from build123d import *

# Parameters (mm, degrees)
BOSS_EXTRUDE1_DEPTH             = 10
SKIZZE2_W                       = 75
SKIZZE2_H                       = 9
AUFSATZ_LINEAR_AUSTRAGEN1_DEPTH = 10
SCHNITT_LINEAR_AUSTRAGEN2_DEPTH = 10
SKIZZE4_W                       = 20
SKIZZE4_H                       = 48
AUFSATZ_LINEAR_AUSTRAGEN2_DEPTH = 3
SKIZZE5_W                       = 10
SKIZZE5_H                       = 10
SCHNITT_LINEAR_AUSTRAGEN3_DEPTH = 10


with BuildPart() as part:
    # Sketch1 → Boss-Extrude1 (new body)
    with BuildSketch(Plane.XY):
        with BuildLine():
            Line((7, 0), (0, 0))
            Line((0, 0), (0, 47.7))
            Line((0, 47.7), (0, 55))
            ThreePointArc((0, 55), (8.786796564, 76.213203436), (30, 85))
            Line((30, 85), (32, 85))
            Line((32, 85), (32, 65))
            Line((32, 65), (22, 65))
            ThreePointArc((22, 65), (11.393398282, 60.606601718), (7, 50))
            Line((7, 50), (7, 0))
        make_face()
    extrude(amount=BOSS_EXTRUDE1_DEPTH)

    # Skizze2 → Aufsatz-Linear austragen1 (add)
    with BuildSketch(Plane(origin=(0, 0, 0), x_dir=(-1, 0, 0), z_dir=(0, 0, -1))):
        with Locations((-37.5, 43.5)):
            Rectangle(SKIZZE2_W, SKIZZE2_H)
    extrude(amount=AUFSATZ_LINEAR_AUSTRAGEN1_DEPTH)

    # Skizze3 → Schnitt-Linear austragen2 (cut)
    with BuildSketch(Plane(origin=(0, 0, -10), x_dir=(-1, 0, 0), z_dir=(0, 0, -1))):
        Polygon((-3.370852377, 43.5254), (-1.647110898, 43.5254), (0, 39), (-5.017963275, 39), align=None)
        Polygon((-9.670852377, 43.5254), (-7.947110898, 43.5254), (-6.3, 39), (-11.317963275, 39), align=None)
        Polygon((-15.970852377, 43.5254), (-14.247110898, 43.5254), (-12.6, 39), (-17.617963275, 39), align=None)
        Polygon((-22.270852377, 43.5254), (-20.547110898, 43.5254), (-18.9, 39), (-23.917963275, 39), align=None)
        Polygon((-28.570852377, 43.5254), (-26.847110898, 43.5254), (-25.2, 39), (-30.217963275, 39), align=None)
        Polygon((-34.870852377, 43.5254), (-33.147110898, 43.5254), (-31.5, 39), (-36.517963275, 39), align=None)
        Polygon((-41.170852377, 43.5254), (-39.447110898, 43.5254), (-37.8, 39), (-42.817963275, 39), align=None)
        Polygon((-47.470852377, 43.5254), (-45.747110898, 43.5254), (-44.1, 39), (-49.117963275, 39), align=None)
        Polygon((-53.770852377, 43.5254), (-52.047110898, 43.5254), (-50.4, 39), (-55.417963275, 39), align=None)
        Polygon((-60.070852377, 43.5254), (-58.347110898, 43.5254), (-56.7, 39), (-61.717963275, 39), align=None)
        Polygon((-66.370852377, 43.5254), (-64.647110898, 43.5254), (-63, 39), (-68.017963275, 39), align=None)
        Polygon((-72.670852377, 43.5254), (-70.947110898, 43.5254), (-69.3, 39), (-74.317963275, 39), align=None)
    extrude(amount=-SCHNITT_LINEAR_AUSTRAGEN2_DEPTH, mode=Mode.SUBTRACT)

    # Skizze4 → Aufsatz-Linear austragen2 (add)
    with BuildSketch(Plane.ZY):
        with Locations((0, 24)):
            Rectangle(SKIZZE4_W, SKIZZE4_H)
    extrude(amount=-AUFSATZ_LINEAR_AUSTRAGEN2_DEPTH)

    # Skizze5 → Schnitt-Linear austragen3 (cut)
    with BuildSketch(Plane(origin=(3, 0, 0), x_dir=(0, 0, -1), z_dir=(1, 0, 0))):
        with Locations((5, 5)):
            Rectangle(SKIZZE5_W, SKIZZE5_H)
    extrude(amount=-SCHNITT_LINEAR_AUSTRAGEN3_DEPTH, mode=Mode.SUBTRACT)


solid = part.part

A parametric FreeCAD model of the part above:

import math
import FreeCAD as App
import Part
import Sketcher
from FreeCAD import Vector
Q = App.Units.Quantity

doc = App.newDocument("Part")
body = doc.addObject("PartDesign::Body", "Body")

# Sketch on XY plane
sketch1 = body.newObject("Sketcher::SketchObject", "Sketch")
sketch1.AttachmentSupport = (doc.getObject("XY_Plane"), [""])
sketch1.MapMode = "FlatFace"
sketch1.addGeometry([
    Part.LineSegment(Vector(0, 0, 0), Vector(7, 0, 0)),  # 0
    Part.LineSegment(Vector(7, 0, 0), Vector(7, 50, 0)),  # 1
    Part.ArcOfCircle(Part.Circle(Vector(22, 50, 0), Vector(0, 0, 1), 15), math.radians(90), math.radians(180)),  # 2
    Part.LineSegment(Vector(22, 65, 0), Vector(32, 65, 0)),  # 3
    Part.LineSegment(Vector(32, 65, 0), Vector(32, 85, 0)),  # 4
    Part.LineSegment(Vector(32, 85, 0), Vector(30, 85, 0)),  # 5
    Part.ArcOfCircle(Part.Circle(Vector(30, 55, 0), Vector(0, 0, 1), 30), math.radians(90), math.radians(180)),  # 6
    Part.LineSegment(Vector(0, 55, 0), Vector(0, 0, 0)),  # 7
], False)
sketch1.addConstraint([
    Sketcher.Constraint("Coincident", 0, 2, 1, 1),
    Sketcher.Constraint("Tangent", 1, 2, 2, 2),
    Sketcher.Constraint("Tangent", 2, 1, 3, 1),
    Sketcher.Constraint("Coincident", 3, 2, 4, 1),
    Sketcher.Constraint("Coincident", 4, 2, 5, 1),
    Sketcher.Constraint("Tangent", 5, 2, 6, 1),
    Sketcher.Constraint("Tangent", 6, 2, 7, 1),
    Sketcher.Constraint("Coincident", 7, 2, 0, 1),
    Sketcher.Constraint("Horizontal", 0),
    Sketcher.Constraint("Vertical", 1),
    Sketcher.Constraint("Horizontal", 3),
    Sketcher.Constraint("Vertical", 4),
    Sketcher.Constraint("Horizontal", 5),
    Sketcher.Constraint("Vertical", 7),
    Sketcher.Constraint("Coincident", 7, 2, -1, 1),
    Sketcher.Constraint("Radius", 2, Q("15 mm")),
    Sketcher.Constraint("Radius", 6, Q("30 mm")),
    Sketcher.Constraint("DistanceX", 0, 1, 0, 2, Q("7 mm")),
    Sketcher.Constraint("DistanceX", 3, 1, 3, 2, Q("10 mm")),
    Sketcher.Constraint("DistanceY", 1, 1, 1, 2, Q("50 mm")),
    Sketcher.Constraint("DistanceY", 4, 1, 4, 2, Q("20 mm")),
])
pad1 = body.newObject("PartDesign::Pad", "Pad")
pad1.Profile = sketch1
pad1.Length = 10

# Sketch on XY plane
sketch2 = body.newObject("Sketcher::SketchObject", "Sketch001")
sketch2.AttachmentSupport = (doc.getObject("XY_Plane"), [""])
sketch2.MapMode = "FlatFace"
sketch2.addGeometry([
    Part.LineSegment(Vector(75, 48, 0), Vector(75, 39, 0)),
    Part.LineSegment(Vector(75, 39, 0), Vector(0, 39, 0)),
    Part.LineSegment(Vector(0, 39, 0), Vector(0, 48, 0)),
    Part.LineSegment(Vector(0, 48, 0), Vector(75, 48, 0)),
], False)
sketch2.addConstraint([
    Sketcher.Constraint("Coincident", 0, 2, 1, 1),
    Sketcher.Constraint("Coincident", 1, 2, 2, 1),
    Sketcher.Constraint("Coincident", 2, 2, 3, 1),
    Sketcher.Constraint("Coincident", 3, 2, 0, 1),
    Sketcher.Constraint("Vertical", 0),
    Sketcher.Constraint("Horizontal", 1),
    Sketcher.Constraint("Vertical", 2),
    Sketcher.Constraint("Horizontal", 3),
    Sketcher.Constraint("PointOnObject", 1, 2, -2),
    Sketcher.Constraint("DistanceX", 1, 2, 1, 1, Q("75 mm")),
    Sketcher.Constraint("DistanceY", 0, 2, 0, 1, Q("9 mm")),
    Sketcher.Constraint("DistanceY", -1, 1, 0, 2, Q("39 mm")),
])
pad2 = body.newObject("PartDesign::Pad", "Pad001")
pad2.Profile = sketch2
pad2.Length = 10
pad2.Reversed = True

# Sketch on XY plane
sketch3 = body.newObject("Sketcher::SketchObject", "Sketch002")
sketch3.AttachmentSupport = (doc.getObject("XY_Plane"), [""])
sketch3.MapMode = "FlatFace"
sketch3.AttachmentOffset = App.Placement(Vector(0, 0, -10), App.Rotation())
sketch3.addGeometry([
    Part.LineSegment(Vector(1.647111, 43.5254, 0), Vector(3.370852, 43.5254, 0)),  # 0
    Part.LineSegment(Vector(3.370852, 43.5254, 0), Vector(5.017963, 39, 0)),  # 1
    Part.LineSegment(Vector(5.017963, 39, 0), Vector(0, 39, 0)),  # 2
    Part.LineSegment(Vector(0, 39, 0), Vector(1.647111, 43.5254, 0)),  # 3
    Part.LineSegment(Vector(7.947111, 43.5254, 0), Vector(9.670852, 43.5254, 0)),  # 4
    Part.LineSegment(Vector(9.670852, 43.5254, 0), Vector(11.317963, 39, 0)),  # 5
    Part.LineSegment(Vector(11.317963, 39, 0), Vector(6.3, 39, 0)),  # 6
    Part.LineSegment(Vector(6.3, 39, 0), Vector(7.947111, 43.5254, 0)),  # 7
    Part.LineSegment(Vector(14.247111, 43.5254, 0), Vector(15.970852, 43.5254, 0)),  # 8
    Part.LineSegment(Vector(15.970852, 43.5254, 0), Vector(17.617963, 39, 0)),  # 9
    Part.LineSegment(Vector(17.617963, 39, 0), Vector(12.6, 39, 0)),  # 10
    Part.LineSegment(Vector(12.6, 39, 0), Vector(14.247111, 43.5254, 0)),  # 11
    Part.LineSegment(Vector(20.547111, 43.5254, 0), Vector(22.270852, 43.5254, 0)),  # 12
    Part.LineSegment(Vector(22.270852, 43.5254, 0), Vector(23.917963, 39, 0)),  # 13
    Part.LineSegment(Vector(23.917963, 39, 0), Vector(18.9, 39, 0)),  # 14
    Part.LineSegment(Vector(18.9, 39, 0), Vector(20.547111, 43.5254, 0)),  # 15
    Part.LineSegment(Vector(26.847111, 43.5254, 0), Vector(28.570852, 43.5254, 0)),  # 16
    Part.LineSegment(Vector(28.570852, 43.5254, 0), Vector(30.217963, 39, 0)),  # 17
    Part.LineSegment(Vector(30.217963, 39, 0), Vector(25.2, 39, 0)),  # 18
    Part.LineSegment(Vector(25.2, 39, 0), Vector(26.847111, 43.5254, 0)),  # 19
    Part.LineSegment(Vector(33.147111, 43.5254, 0), Vector(34.870852, 43.5254, 0)),  # 20
    Part.LineSegment(Vector(34.870852, 43.5254, 0), Vector(36.517963, 39, 0)),  # 21
    Part.LineSegment(Vector(36.517963, 39, 0), Vector(31.5, 39, 0)),  # 22
    Part.LineSegment(Vector(31.5, 39, 0), Vector(33.147111, 43.5254, 0)),  # 23
    Part.LineSegment(Vector(39.447111, 43.5254, 0), Vector(41.170852, 43.5254, 0)),  # 24
    Part.LineSegment(Vector(41.170852, 43.5254, 0), Vector(42.817963, 39, 0)),  # 25
    Part.LineSegment(Vector(42.817963, 39, 0), Vector(37.8, 39, 0)),  # 26
    Part.LineSegment(Vector(37.8, 39, 0), Vector(39.447111, 43.5254, 0)),  # 27
    Part.LineSegment(Vector(45.747111, 43.5254, 0), Vector(47.470852, 43.5254, 0)),  # 28
    Part.LineSegment(Vector(47.470852, 43.5254, 0), Vector(49.117963, 39, 0)),  # 29
    Part.LineSegment(Vector(49.117963, 39, 0), Vector(44.1, 39, 0)),  # 30
    Part.LineSegment(Vector(44.1, 39, 0), Vector(45.747111, 43.5254, 0)),  # 31
    Part.LineSegment(Vector(52.047111, 43.5254, 0), Vector(53.770852, 43.5254, 0)),  # 32
    Part.LineSegment(Vector(53.770852, 43.5254, 0), Vector(55.417963, 39, 0)),  # 33
    Part.LineSegment(Vector(55.417963, 39, 0), Vector(50.4, 39, 0)),  # 34
    Part.LineSegment(Vector(50.4, 39, 0), Vector(52.047111, 43.5254, 0)),  # 35
    Part.LineSegment(Vector(58.347111, 43.5254, 0), Vector(60.070852, 43.5254, 0)),  # 36
    Part.LineSegment(Vector(60.070852, 43.5254, 0), Vector(61.717963, 39, 0)),  # 37
    Part.LineSegment(Vector(61.717963, 39, 0), Vector(56.7, 39, 0)),  # 38
    Part.LineSegment(Vector(56.7, 39, 0), Vector(58.347111, 43.5254, 0)),  # 39
    Part.LineSegment(Vector(64.647111, 43.5254, 0), Vector(66.370852, 43.5254, 0)),  # 40
    Part.LineSegment(Vector(66.370852, 43.5254, 0), Vector(68.017963, 39, 0)),  # 41
    Part.LineSegment(Vector(68.017963, 39, 0), Vector(63, 39, 0)),  # 42
    Part.LineSegment(Vector(63, 39, 0), Vector(64.647111, 43.5254, 0)),  # 43
    Part.LineSegment(Vector(70.947111, 43.5254, 0), Vector(72.670852, 43.5254, 0)),  # 44
    Part.LineSegment(Vector(72.670852, 43.5254, 0), Vector(74.317963, 39, 0)),  # 45
    Part.LineSegment(Vector(74.317963, 39, 0), Vector(69.3, 39, 0)),  # 46
    Part.LineSegment(Vector(69.3, 39, 0), Vector(70.947111, 43.5254, 0)),  # 47
], False)
sketch3.addConstraint([
    Sketcher.Constraint("Coincident", 0, 2, 1, 1),
    Sketcher.Constraint("Coincident", 1, 2, 2, 1),
    Sketcher.Constraint("Coincident", 2, 2, 3, 1),
    Sketcher.Constraint("Coincident", 3, 2, 0, 1),
    Sketcher.Constraint("Coincident", 4, 2, 5, 1),
    Sketcher.Constraint("Coincident", 5, 2, 6, 1),
    Sketcher.Constraint("Coincident", 6, 2, 7, 1),
    Sketcher.Constraint("Coincident", 7, 2, 4, 1),
    Sketcher.Constraint("Coincident", 8, 2, 9, 1),
    Sketcher.Constraint("Coincident", 9, 2, 10, 1),
    Sketcher.Constraint("Coincident", 10, 2, 11, 1),
    Sketcher.Constraint("Coincident", 11, 2, 8, 1),
    Sketcher.Constraint("Coincident", 12, 2, 13, 1),
    Sketcher.Constraint("Coincident", 13, 2, 14, 1),
    Sketcher.Constraint("Coincident", 14, 2, 15, 1),
    Sketcher.Constraint("Coincident", 15, 2, 12, 1),
    Sketcher.Constraint("Coincident", 16, 2, 17, 1),
    Sketcher.Constraint("Coincident", 17, 2, 18, 1),
    Sketcher.Constraint("Coincident", 18, 2, 19, 1),
    Sketcher.Constraint("Coincident", 19, 2, 16, 1),
    Sketcher.Constraint("Coincident", 20, 2, 21, 1),
    Sketcher.Constraint("Coincident", 21, 2, 22, 1),
    Sketcher.Constraint("Coincident", 22, 2, 23, 1),
    Sketcher.Constraint("Coincident", 23, 2, 20, 1),
    Sketcher.Constraint("Coincident", 24, 2, 25, 1),
    Sketcher.Constraint("Coincident", 25, 2, 26, 1),
    Sketcher.Constraint("Coincident", 26, 2, 27, 1),
    Sketcher.Constraint("Coincident", 27, 2, 24, 1),
    Sketcher.Constraint("Coincident", 28, 2, 29, 1),
    Sketcher.Constraint("Coincident", 29, 2, 30, 1),
    Sketcher.Constraint("Coincident", 30, 2, 31, 1),
    Sketcher.Constraint("Coincident", 31, 2, 28, 1),
    Sketcher.Constraint("Coincident", 32, 2, 33, 1),
    Sketcher.Constraint("Coincident", 33, 2, 34, 1),
    Sketcher.Constraint("Coincident", 34, 2, 35, 1),
    Sketcher.Constraint("Coincident", 35, 2, 32, 1),
    Sketcher.Constraint("Coincident", 36, 2, 37, 1),
    Sketcher.Constraint("Coincident", 37, 2, 38, 1),
    Sketcher.Constraint("Coincident", 38, 2, 39, 1),
    Sketcher.Constraint("Coincident", 39, 2, 36, 1),
    Sketcher.Constraint("Coincident", 40, 2, 41, 1),
    Sketcher.Constraint("Coincident", 41, 2, 42, 1),
    Sketcher.Constraint("Coincident", 42, 2, 43, 1),
    Sketcher.Constraint("Coincident", 43, 2, 40, 1),
    Sketcher.Constraint("Coincident", 44, 2, 45, 1),
    Sketcher.Constraint("Coincident", 45, 2, 46, 1),
    Sketcher.Constraint("Coincident", 46, 2, 47, 1),
    Sketcher.Constraint("Coincident", 47, 2, 44, 1),
    Sketcher.Constraint("Horizontal", 0),
    Sketcher.Constraint("Horizontal", 2),
    Sketcher.Constraint("Horizontal", 4),
    Sketcher.Constraint("Horizontal", 6),
    Sketcher.Constraint("Horizontal", 8),
    Sketcher.Constraint("Horizontal", 10),
    Sketcher.Constraint("Horizontal", 12),
    Sketcher.Constraint("Horizontal", 14),
    Sketcher.Constraint("Horizontal", 16),
    Sketcher.Constraint("Horizontal", 18),
    Sketcher.Constraint("Horizontal", 20),
    Sketcher.Constraint("Horizontal", 22),
    Sketcher.Constraint("Horizontal", 24),
    Sketcher.Constraint("Horizontal", 26),
    Sketcher.Constraint("Horizontal", 28),
    Sketcher.Constraint("Horizontal", 30),
    Sketcher.Constraint("Horizontal", 32),
    Sketcher.Constraint("Horizontal", 34),
    Sketcher.Constraint("Horizontal", 36),
    Sketcher.Constraint("Horizontal", 38),
    Sketcher.Constraint("Horizontal", 40),
    Sketcher.Constraint("Horizontal", 42),
    Sketcher.Constraint("Horizontal", 44),
    Sketcher.Constraint("Horizontal", 46),
    Sketcher.Constraint("PointOnObject", 2, 2, -2),
    Sketcher.Constraint("Parallel", 1, 5),
    Sketcher.Constraint("Parallel", 3, 7),
    Sketcher.Constraint("Parallel", 5, 9),
    Sketcher.Constraint("Parallel", 7, 11),
    Sketcher.Constraint("Parallel", 9, 13),
    Sketcher.Constraint("Parallel", 11, 15),
    Sketcher.Constraint("Parallel", 13, 17),
    Sketcher.Constraint("Parallel", 15, 19),
    Sketcher.Constraint("Parallel", 17, 21),
    Sketcher.Constraint("Parallel", 19, 23),
    Sketcher.Constraint("Parallel", 21, 25),
    Sketcher.Constraint("Parallel", 23, 27),
    Sketcher.Constraint("Parallel", 25, 29),
    Sketcher.Constraint("Parallel", 27, 31),
    Sketcher.Constraint("Parallel", 29, 33),
    Sketcher.Constraint("Parallel", 31, 35),
    Sketcher.Constraint("Parallel", 33, 37),
    Sketcher.Constraint("Parallel", 35, 39),
    Sketcher.Constraint("Parallel", 37, 41),
    Sketcher.Constraint("Parallel", 39, 43),
    Sketcher.Constraint("Parallel", 41, 45),
    Sketcher.Constraint("Parallel", 43, 47),
    Sketcher.Constraint("Horizontal", 3, 2, 4, 2),
    Sketcher.Constraint("Horizontal", 2, 2, 5, 2),
    Sketcher.Constraint("Horizontal", 7, 2, 8, 2),
    Sketcher.Constraint("Horizontal", 6, 2, 9, 2),
    Sketcher.Constraint("Horizontal", 11, 2, 12, 2),
    Sketcher.Constraint("Horizontal", 10, 2, 13, 2),
    Sketcher.Constraint("Horizontal", 15, 2, 16, 2),
    Sketcher.Constraint("Horizontal", 14, 2, 17, 2),
    Sketcher.Constraint("Horizontal", 19, 2, 20, 2),
    Sketcher.Constraint("Horizontal", 18, 2, 21, 2),
    Sketcher.Constraint("Horizontal", 23, 2, 24, 2),
    Sketcher.Constraint("Horizontal", 22, 2, 25, 2),
    Sketcher.Constraint("Horizontal", 27, 2, 28, 2),
    Sketcher.Constraint("Horizontal", 26, 2, 29, 2),
    Sketcher.Constraint("Horizontal", 31, 2, 32, 2),
    Sketcher.Constraint("Horizontal", 30, 2, 33, 2),
    Sketcher.Constraint("Horizontal", 35, 2, 36, 2),
    Sketcher.Constraint("Horizontal", 34, 2, 37, 2),
    Sketcher.Constraint("Horizontal", 39, 2, 40, 2),
    Sketcher.Constraint("Horizontal", 38, 2, 41, 2),
    Sketcher.Constraint("Horizontal", 43, 2, 44, 2),
    Sketcher.Constraint("Horizontal", 42, 2, 45, 2),
    Sketcher.Constraint("Equal", 0, 4),
    Sketcher.Constraint("Equal", 4, 8),
    Sketcher.Constraint("Equal", 8, 12),
    Sketcher.Constraint("Equal", 12, 16),
    Sketcher.Constraint("Equal", 16, 20),
    Sketcher.Constraint("Equal", 20, 24),
    Sketcher.Constraint("Equal", 24, 28),
    Sketcher.Constraint("Equal", 28, 32),
    Sketcher.Constraint("Equal", 32, 36),
    Sketcher.Constraint("Equal", 36, 40),
    Sketcher.Constraint("Equal", 40, 44),
    Sketcher.Constraint("Equal", 1, 3),
    Sketcher.Constraint("Angle", 1, Q("-70 deg")),
    Sketcher.Constraint("DistanceY", -1, 1, 1, 2, Q("39 mm")),
    Sketcher.Constraint("DistanceX", -1, 1, 42, 2, Q("63 mm")),
    Sketcher.Constraint("DistanceX", -1, 1, 6, 2, Q("6.3 mm")),
    Sketcher.Constraint("DistanceX", -1, 1, 10, 2, Q("12.6 mm")),
    Sketcher.Constraint("DistanceX", -1, 1, 14, 2, Q("18.9 mm")),
    Sketcher.Constraint("DistanceX", -1, 1, 18, 2, Q("25.2 mm")),
    Sketcher.Constraint("DistanceX", -1, 1, 22, 2, Q("31.5 mm")),
    Sketcher.Constraint("DistanceX", -1, 1, 26, 2, Q("37.8 mm")),
    Sketcher.Constraint("DistanceX", -1, 1, 30, 2, Q("44.1 mm")),
    Sketcher.Constraint("DistanceX", -1, 1, 34, 2, Q("50.4 mm")),
    Sketcher.Constraint("DistanceX", -1, 1, 38, 2, Q("56.7 mm")),
    Sketcher.Constraint("DistanceX", -1, 1, 46, 2, Q("69.3 mm")),
    Sketcher.Constraint("DistanceX", 0, 1, 0, 2, Q("1.723741 mm")),
    Sketcher.Constraint("DistanceY", -1, 1, 0, 2, Q("43.5254 mm")),
])
pocket1 = body.newObject("PartDesign::Pocket", "Pocket")
pocket1.Profile = sketch3
pocket1.Length = 10
pocket1.Reversed = True

# Sketch on YZ plane
sketch4 = body.newObject("Sketcher::SketchObject", "Sketch003")
sketch4.AttachmentSupport = (doc.getObject("YZ_Plane"), [""])
sketch4.MapMode = "FlatFace"
sketch4.addGeometry([
    Part.LineSegment(Vector(48, -10, 0), Vector(0, -10, 0)),
    Part.LineSegment(Vector(0, -10, 0), Vector(0, 10, 0)),
    Part.LineSegment(Vector(0, 10, 0), Vector(48, 10, 0)),
    Part.LineSegment(Vector(48, 10, 0), Vector(48, -10, 0)),
], False)
sketch4.addConstraint([
    Sketcher.Constraint("Coincident", 0, 2, 1, 1),
    Sketcher.Constraint("Coincident", 1, 2, 2, 1),
    Sketcher.Constraint("Coincident", 2, 2, 3, 1),
    Sketcher.Constraint("Coincident", 3, 2, 0, 1),
    Sketcher.Constraint("Horizontal", 0),
    Sketcher.Constraint("Vertical", 1),
    Sketcher.Constraint("Horizontal", 2),
    Sketcher.Constraint("Vertical", 3),
    Sketcher.Constraint("Symmetric", 0, 2, 1, 2, -1, 1),
    Sketcher.Constraint("DistanceX", 0, 2, 0, 1, Q("48 mm")),
    Sketcher.Constraint("DistanceY", 1, 1, 1, 2, Q("20 mm")),
])
pad3 = body.newObject("PartDesign::Pad", "Pad002")
pad3.Profile = sketch4
pad3.Length = 3

# Sketch on YZ plane
sketch5 = body.newObject("Sketcher::SketchObject", "Sketch004")
sketch5.AttachmentSupport = (doc.getObject("YZ_Plane"), [""])
sketch5.MapMode = "FlatFace"
sketch5.AttachmentOffset = App.Placement(Vector(0, 0, 3), App.Rotation())
sketch5.addGeometry([
    Part.LineSegment(Vector(10, 0, 0), Vector(0, 0, 0)),
    Part.LineSegment(Vector(0, 0, 0), Vector(0, -10, 0)),
    Part.LineSegment(Vector(0, -10, 0), Vector(10, -10, 0)),
    Part.LineSegment(Vector(10, -10, 0), Vector(10, 0, 0)),
], False)
sketch5.addConstraint([
    Sketcher.Constraint("Coincident", 0, 2, 1, 1),
    Sketcher.Constraint("Coincident", 1, 2, 2, 1),
    Sketcher.Constraint("Coincident", 2, 2, 3, 1),
    Sketcher.Constraint("Coincident", 3, 2, 0, 1),
    Sketcher.Constraint("Horizontal", 0),
    Sketcher.Constraint("Vertical", 1),
    Sketcher.Constraint("Horizontal", 2),
    Sketcher.Constraint("Vertical", 3),
    Sketcher.Constraint("Coincident", 0, 2, -1, 1),
    Sketcher.Constraint("Equal", 2, 1),
    Sketcher.Constraint("DistanceX", 0, 2, 0, 1, Q("10 mm")),
])
pocket2 = body.newObject("PartDesign::Pocket", "Pocket001")
pocket2.Profile = sketch5
pocket2.Length = 10

doc.recompute()
